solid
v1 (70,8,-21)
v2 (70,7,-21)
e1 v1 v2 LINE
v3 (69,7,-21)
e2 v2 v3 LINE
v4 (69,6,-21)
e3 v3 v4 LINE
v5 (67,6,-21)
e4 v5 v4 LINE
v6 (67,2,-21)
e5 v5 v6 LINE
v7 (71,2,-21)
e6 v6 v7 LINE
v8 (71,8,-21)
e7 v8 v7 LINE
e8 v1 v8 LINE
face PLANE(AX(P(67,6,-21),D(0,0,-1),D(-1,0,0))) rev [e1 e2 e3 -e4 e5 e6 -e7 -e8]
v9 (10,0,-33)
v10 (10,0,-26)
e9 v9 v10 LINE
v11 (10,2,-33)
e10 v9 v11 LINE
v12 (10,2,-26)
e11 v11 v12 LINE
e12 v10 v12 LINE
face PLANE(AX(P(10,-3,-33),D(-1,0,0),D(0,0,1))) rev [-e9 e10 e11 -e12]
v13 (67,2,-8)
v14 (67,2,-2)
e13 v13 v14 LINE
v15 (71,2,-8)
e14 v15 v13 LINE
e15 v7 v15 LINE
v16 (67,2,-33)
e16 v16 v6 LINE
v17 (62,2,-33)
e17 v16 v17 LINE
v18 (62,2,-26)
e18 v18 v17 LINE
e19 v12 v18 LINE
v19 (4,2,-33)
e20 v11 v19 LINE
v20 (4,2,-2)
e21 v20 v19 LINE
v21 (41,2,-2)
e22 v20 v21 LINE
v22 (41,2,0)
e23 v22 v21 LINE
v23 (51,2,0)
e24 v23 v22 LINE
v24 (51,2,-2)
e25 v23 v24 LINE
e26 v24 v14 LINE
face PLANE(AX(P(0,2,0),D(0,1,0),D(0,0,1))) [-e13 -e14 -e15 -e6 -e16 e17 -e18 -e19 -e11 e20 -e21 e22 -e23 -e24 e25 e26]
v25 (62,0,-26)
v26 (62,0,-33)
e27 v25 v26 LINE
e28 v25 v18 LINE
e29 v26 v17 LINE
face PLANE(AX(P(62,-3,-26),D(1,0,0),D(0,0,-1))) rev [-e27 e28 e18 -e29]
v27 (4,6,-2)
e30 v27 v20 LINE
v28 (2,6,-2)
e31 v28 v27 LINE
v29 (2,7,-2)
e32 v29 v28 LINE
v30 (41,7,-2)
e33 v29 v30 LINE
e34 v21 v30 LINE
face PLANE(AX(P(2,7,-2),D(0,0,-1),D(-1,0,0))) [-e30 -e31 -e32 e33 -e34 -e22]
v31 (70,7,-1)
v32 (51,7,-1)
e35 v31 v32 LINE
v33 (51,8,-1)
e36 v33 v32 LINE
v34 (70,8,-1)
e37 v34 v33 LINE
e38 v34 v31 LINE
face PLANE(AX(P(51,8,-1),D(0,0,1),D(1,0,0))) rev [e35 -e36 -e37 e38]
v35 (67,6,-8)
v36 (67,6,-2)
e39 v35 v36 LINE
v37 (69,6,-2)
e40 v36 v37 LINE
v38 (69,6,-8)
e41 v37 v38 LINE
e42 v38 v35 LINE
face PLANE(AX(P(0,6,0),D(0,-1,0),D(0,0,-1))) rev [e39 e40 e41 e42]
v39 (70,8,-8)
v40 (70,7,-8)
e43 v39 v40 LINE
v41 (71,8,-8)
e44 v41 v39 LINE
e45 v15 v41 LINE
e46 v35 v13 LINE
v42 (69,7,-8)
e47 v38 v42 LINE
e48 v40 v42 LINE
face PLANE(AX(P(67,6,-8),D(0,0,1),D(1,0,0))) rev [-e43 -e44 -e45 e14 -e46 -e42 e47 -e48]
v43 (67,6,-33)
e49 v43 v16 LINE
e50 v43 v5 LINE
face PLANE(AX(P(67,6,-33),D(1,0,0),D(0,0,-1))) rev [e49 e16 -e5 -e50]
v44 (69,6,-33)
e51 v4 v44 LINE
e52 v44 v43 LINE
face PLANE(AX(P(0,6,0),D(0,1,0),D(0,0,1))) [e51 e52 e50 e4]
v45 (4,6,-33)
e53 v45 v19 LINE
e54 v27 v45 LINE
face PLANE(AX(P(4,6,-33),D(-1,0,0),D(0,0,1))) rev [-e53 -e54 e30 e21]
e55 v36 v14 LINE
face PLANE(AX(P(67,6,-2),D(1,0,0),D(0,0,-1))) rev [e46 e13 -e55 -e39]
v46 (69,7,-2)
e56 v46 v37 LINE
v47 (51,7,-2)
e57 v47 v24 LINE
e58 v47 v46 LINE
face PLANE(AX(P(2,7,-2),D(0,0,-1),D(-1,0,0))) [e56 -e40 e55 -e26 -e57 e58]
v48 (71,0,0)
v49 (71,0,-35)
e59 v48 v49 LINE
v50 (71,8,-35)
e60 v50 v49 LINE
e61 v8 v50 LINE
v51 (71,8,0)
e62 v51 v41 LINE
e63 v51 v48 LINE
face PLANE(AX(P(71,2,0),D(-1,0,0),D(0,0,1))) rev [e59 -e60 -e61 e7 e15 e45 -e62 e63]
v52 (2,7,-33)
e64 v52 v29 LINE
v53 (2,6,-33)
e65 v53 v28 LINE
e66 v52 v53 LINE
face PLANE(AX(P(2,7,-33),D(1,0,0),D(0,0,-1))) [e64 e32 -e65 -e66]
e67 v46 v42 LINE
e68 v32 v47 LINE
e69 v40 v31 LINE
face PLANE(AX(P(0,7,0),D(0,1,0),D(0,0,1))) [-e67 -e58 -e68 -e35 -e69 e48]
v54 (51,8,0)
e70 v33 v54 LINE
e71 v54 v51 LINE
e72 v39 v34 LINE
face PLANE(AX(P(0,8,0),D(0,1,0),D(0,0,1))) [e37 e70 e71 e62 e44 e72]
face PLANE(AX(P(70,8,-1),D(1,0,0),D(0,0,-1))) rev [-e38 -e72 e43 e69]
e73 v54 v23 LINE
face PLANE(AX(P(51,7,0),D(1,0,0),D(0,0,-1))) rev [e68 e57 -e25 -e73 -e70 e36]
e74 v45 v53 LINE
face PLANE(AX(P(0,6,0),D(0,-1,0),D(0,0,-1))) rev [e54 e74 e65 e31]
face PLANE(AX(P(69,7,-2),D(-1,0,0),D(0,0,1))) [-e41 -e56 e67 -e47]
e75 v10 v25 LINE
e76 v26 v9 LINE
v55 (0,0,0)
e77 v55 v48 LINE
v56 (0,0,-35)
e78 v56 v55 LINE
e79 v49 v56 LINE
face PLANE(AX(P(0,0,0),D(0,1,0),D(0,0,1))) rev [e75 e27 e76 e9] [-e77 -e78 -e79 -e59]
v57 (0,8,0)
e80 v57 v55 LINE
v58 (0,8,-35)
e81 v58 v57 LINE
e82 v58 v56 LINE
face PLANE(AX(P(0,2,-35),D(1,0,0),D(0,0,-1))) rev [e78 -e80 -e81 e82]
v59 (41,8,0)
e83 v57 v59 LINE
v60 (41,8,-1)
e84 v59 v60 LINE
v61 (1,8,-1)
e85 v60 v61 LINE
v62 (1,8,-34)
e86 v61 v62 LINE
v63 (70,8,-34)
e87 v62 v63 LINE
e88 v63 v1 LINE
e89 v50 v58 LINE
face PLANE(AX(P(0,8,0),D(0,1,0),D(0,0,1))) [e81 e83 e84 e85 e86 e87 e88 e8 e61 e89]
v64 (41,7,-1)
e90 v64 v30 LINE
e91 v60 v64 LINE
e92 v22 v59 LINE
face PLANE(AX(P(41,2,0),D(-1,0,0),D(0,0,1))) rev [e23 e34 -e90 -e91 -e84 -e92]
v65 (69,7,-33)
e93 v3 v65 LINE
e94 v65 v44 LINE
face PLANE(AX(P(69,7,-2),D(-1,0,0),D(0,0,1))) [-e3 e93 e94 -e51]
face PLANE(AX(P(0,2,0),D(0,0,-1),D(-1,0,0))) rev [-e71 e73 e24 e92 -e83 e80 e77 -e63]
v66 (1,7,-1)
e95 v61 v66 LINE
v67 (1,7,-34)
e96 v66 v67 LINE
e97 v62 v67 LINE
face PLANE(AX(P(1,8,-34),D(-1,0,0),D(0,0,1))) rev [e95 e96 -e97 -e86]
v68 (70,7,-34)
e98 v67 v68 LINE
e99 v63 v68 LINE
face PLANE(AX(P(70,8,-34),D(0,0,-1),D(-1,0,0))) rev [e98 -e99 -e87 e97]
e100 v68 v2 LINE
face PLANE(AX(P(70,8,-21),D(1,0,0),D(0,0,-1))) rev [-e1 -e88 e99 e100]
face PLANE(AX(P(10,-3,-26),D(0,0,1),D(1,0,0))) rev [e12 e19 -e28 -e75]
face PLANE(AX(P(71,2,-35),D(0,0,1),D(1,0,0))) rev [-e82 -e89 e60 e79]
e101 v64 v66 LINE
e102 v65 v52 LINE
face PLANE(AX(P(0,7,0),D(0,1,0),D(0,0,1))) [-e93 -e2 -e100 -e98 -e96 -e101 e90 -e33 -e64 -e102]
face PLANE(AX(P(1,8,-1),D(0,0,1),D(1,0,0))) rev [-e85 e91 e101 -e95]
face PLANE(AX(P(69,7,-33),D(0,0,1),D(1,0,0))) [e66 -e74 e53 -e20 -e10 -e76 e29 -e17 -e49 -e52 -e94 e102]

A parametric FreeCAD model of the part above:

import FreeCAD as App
import Part
import Sketcher

V = App.Vector

doc = App.newDocument("Part")
body = doc.addObject("PartDesign::Body", "Body")

sketch1 = doc.addObject("Sketcher::SketchObject", "Sketch")
body.addObject(sketch1)
sketch1.AttachmentSupport = (doc.XZ_Plane, [""])
sketch1.MapMode = "FlatFace"
sketch1.addGeometry([
    Part.LineSegment(V(0, -35, 0), V(0, 0, 0)),
    Part.LineSegment(V(0, 0, 0), V(71, 0, 0)),
    Part.LineSegment(V(71, 0, 0), V(71, -35, 0)),
    Part.LineSegment(V(71, -35, 0), V(0, -35, 0)),
], False)
sketch1.addConstraint([
    Sketcher.Constraint("Coincident", 0, 2, 1, 1),
    Sketcher.Constraint("Coincident", 1, 2, 2, 1),
    Sketcher.Constraint("Coincident", 2, 2, 3, 1),
    Sketcher.Constraint("Coincident", 3, 2, 0, 1),
    Sketcher.Constraint("Vertical", 0),
    Sketcher.Constraint("Horizontal", 1),
    Sketcher.Constraint("Vertical", 2),
    Sketcher.Constraint("Horizontal", 3),
    Sketcher.Constraint("Coincident", 0, 2, -1, 1),
    Sketcher.Constraint("DistanceX", 1, 1, 1, 2, 71.0),
    Sketcher.Constraint("DistanceY", 0, 1, 0, 2, 35.0),
])
pad1 = doc.addObject("PartDesign::Pad", "Pad")
body.addObject(pad1)
pad1.Profile = sketch1
pad1.Length = 2
pad1.Reversed = True

sketch2 = doc.addObject("Sketcher::SketchObject", "Sketch001")
body.addObject(sketch2)
sketch2.AttachmentSupport = (doc.XZ_Plane, [""])
sketch2.MapMode = "FlatFace"
sketch2.AttachmentOffset = App.Placement(V(0, 0, -2), App.Rotation())
sketch2.addGeometry([
    Part.LineSegment(V(0, -35, 0), V(0, 0, 0)),
    Part.LineSegment(V(0, 0, 0), V(71, 0, 0)),
    Part.LineSegment(V(71, 0, 0), V(71, -35, 0)),
    Part.LineSegment(V(71, -35, 0), V(0, -35, 0)),
    Part.LineSegment(V(69, -2, 0), V(2, -2, 0)),
    Part.LineSegment(V(2, -2, 0), V(2, -33, 0)),
    Part.LineSegment(V(2, -33, 0), V(69, -33, 0)),
    Part.LineSegment(V(69, -33, 0), V(69, -2, 0)),
], False)
sketch2.addConstraint([
    Sketcher.Constraint("Coincident", 0, 2, 1, 1),
    Sketcher.Constraint("Coincident", 1, 2, 2, 1),
    Sketcher.Constraint("Coincident", 2, 2, 3, 1),
    Sketcher.Constraint("Coincident", 3, 2, 0, 1),
    Sketcher.Constraint("Coincident", 4, 2, 5, 1),
    Sketcher.Constraint("Coincident", 5, 2, 6, 1),
    Sketcher.Constraint("Coincident", 6, 2, 7, 1),
    Sketcher.Constraint("Coincident", 7, 2, 4, 1),
    Sketcher.Constraint("Vertical", 0),
    Sketcher.Constraint("Horizontal", 1),
    Sketcher.Constraint("Vertical", 2),
    Sketcher.Constraint("Horizontal", 3),
    Sketcher.Constraint("Horizontal", 4),
    Sketcher.Constraint("Vertical", 5),
    Sketcher.Constraint("Horizontal", 6),
    Sketcher.Constraint("Vertical", 7),
    Sketcher.Constraint("Coincident", 0, 2, -1, 1),
    Sketcher.Constraint("DistanceX", 1, 1, 1, 2, 71.0),
    Sketcher.Constraint("DistanceX", 4, 2, 4, 1, 67.0),
    Sketcher.Constraint("DistanceY", 0, 1, 0, 2, 35.0),
    Sketcher.Constraint("DistanceY", 5, 2, 5, 1, 31.0),
    Sketcher.Constraint("DistanceX", -1, 1, 4, 2, 2.0),
    Sketcher.Constraint("DistanceY", 4, 2, -1, 1, 2.0),
])
pad2 = doc.addObject("PartDesign::Pad", "Pad001")
body.addObject(pad2)
pad2.Profile = sketch2
pad2.Length = 5
pad2.Reversed = True

sketch3 = doc.addObject("Sketcher::SketchObject", "Sketch002")
body.addObject(sketch3)
sketch3.AttachmentSupport = (doc.XZ_Plane, [""])
sketch3.MapMode = "FlatFace"
sketch3.AttachmentOffset = App.Placement(V(0, 0, -2), App.Rotation())
sketch3.addGeometry([
    Part.LineSegment(V(10, -33, 0), V(10, -26, 0)),
    Part.LineSegment(V(10, -26, 0), V(62, -26, 0)),
    Part.LineSegment(V(62, -26, 0), V(62, -33, 0)),
    Part.LineSegment(V(62, -33, 0), V(10, -33, 0)),
], False)
sketch3.addConstraint([
    Sketcher.Constraint("Coincident", 0, 2, 1, 1),
    Sketcher.Constraint("Coincident", 1, 2, 2, 1),
    Sketcher.Constraint("Coincident", 2, 2, 3, 1),
    Sketcher.Constraint("Coincident", 3, 2, 0, 1),
    Sketcher.Constraint("Vertical", 0),
    Sketcher.Constraint("Horizontal", 1),
    Sketcher.Constraint("Vertical", 2),
    Sketcher.Constraint("Horizontal", 3),
    Sketcher.Constraint("DistanceX", 1, 1, 1, 2, 52.0),
    Sketcher.Constraint("DistanceY", 0, 1, 0, 2, 7.0),
    Sketcher.Constraint("DistanceX", -1, 1, 0, 2, 10.0),
    Sketcher.Constraint("DistanceY", 0, 2, -1, 1, 26.0),
])
pocket1 = doc.addObject("PartDesign::Pocket", "Pocket")
body.addObject(pocket1)
pocket1.Profile = sketch3
pocket1.Length = 5
pocket1.Reversed = True

sketch4 = doc.addObject("Sketcher::SketchObject", "Sketch003")
body.addObject(sketch4)
sketch4.AttachmentSupport = (doc.XZ_Plane, [""])
sketch4.MapMode = "FlatFace"
sketch4.AttachmentOffset = App.Placement(V(0, 0, -2), App.Rotation())
sketch4.addGeometry([
    Part.LineSegment(V(2, -33, 0), V(2, -2, 0)),
    Part.LineSegment(V(2, -2, 0), V(4, -2, 0)),
    Part.LineSegment(V(4, -2, 0), V(4, -33, 0)),
    Part.LineSegment(V(4, -33, 0), V(2, -33, 0)),
    Part.LineSegment(V(67, -33, 0), V(67, -21, 0)),
    Part.LineSegment(V(67, -21, 0), V(69, -21, 0)),
    Part.LineSegment(V(69, -21, 0), V(69, -33, 0)),
    Part.LineSegment(V(69, -33, 0), V(67, -33, 0)),
    Part.LineSegment(V(67, -8, 0), V(67, -2, 0)),
    Part.LineSegment(V(67, -2, 0), V(69, -2, 0)),
    Part.LineSegment(V(69, -2, 0), V(69, -8, 0)),
    Part.LineSegment(V(69, -8, 0), V(67, -8, 0)),
], False)
sketch4.addConstraint([
    Sketcher.Constraint("Coincident", 0, 2, 1, 1),
    Sketcher.Constraint("Coincident", 1, 2, 2, 1),
    Sketcher.Constraint("Coincident", 2, 2, 3, 1),
    Sketcher.Constraint("Coincident", 3, 2, 0, 1),
    Sketcher.Constraint("Coincident", 4, 2, 5, 1),
    Sketcher.Constraint("Coincident", 5, 2, 6, 1),
    Sketcher.Constraint("Coincident", 6, 2, 7, 1),
    Sketcher.Constraint("Coincident", 7, 2, 4, 1),
    Sketcher.Constraint("Coincident", 8, 2, 9, 1),
    Sketcher.Constraint("Coincident", 9, 2, 10, 1),
    Sketcher.Constraint("Coincident", 10, 2, 11, 1),
    Sketcher.Constraint("Coincident", 11, 2, 8, 1),
    Sketcher.Constraint("Vertical", 0),
    Sketcher.Constraint("Horizontal", 1),
    Sketcher.Constraint("Vertical", 2),
    Sketcher.Constraint("Horizontal", 3),
    Sketcher.Constraint("Vertical", 4),
    Sketcher.Constraint("Horizontal", 5),
    Sketcher.Constraint("Vertical", 6),
    Sketcher.Constraint("Horizontal", 7),
    Sketcher.Constraint("Vertical", 8),
    Sketcher.Constraint("Horizontal", 9),
    Sketcher.Constraint("Vertical", 10),
    Sketcher.Constraint("Horizontal", 11),
    Sketcher.Constraint("Horizontal", 3, 2, 6, 2),
    Sketcher.Constraint("Horizontal", 1, 2, 8, 2),
    Sketcher.Constraint("Vertical", 7, 2, 8, 2),
    Sketcher.Constraint("Vertical", 6, 2, 9, 2),
    Sketcher.Constraint("Equal", 3, 5),
    Sketcher.Constraint("DistanceX", 1, 1, 1, 2, 2.0),
    Sketcher.Constraint("DistanceY", 0, 1, 0, 2, 31.0),
    Sketcher.Constraint("DistanceY", 4, 1, 4, 2, 12.0),
    Sketcher.Constraint("DistanceY", 8, 1, 8, 2, 6.0),
    Sketcher.Constraint("DistanceX", -1, 1, 0, 2, 2.0),
    Sketcher.Constraint("DistanceY", 0, 2, -1, 1, 2.0),
    Sketcher.Constraint("DistanceX", -1, 1, 4, 2, 67.0),
])
pad3 = doc.addObject("PartDesign::Pad", "Pad002")
body.addObject(pad3)
pad3.Profile = sketch4
pad3.Length = 4
pad3.Reversed = True

sketch5 = doc.addObject("Sketcher::SketchObject", "Sketch004")
body.addObject(sketch5)
sketch5.AttachmentSupport = (doc.YZ_Plane, [""])
sketch5.MapMode = "FlatFace"
sketch5.AttachmentOffset = App.Placement(V(0, 0, 69), App.Rotation())
sketch5.addGeometry([
    Part.LineSegment(V(7, -21, 0), V(2, -21, 0)),
    Part.LineSegment(V(2, -21, 0), V(2, -8, 0)),
    Part.LineSegment(V(2, -8, 0), V(7, -8, 0)),
    Part.LineSegment(V(7, -8, 0), V(7, -21, 0)),
], False)
sketch5.addConstraint([
    Sketcher.Constraint("Coincident", 0, 2, 1, 1),
    Sketcher.Constraint("Coincident", 1, 2, 2, 1),
    Sketcher.Constraint("Coincident", 2, 2, 3, 1),
    Sketcher.Constraint("Coincident", 3, 2, 0, 1),
    Sketcher.Constraint("Horizontal", 0),
    Sketcher.Constraint("Vertical", 1),
    Sketcher.Constraint("Horizontal", 2),
    Sketcher.Constraint("Vertical", 3),
    Sketcher.Constraint("DistanceX", 0, 2, 0, 1, 5.0),
    Sketcher.Constraint("DistanceY", 1, 1, 1, 2, 13.0),
    Sketcher.Constraint("DistanceX", -1, 1, 0, 2, 2.0),
    Sketcher.Constraint("DistanceY", 0, 2, -1, 1, 21.0),
])
pocket2 = doc.addObject("PartDesign::Pocket", "Pocket001")
body.addObject(pocket2)
pocket2.Profile = sketch5
pocket2.Length = 2
pocket2.Reversed = True

sketch6 = doc.addObject("Sketcher::SketchObject", "Sketch005")
body.addObject(sketch6)
sketch6.AttachmentSupport = (doc.XY_Plane, [""])
sketch6.MapMode = "FlatFace"
sketch6.AttachmentOffset = App.Placement(V(0, 0, -2), App.Rotation())
sketch6.addGeometry([
    Part.LineSegment(V(51, 7, 0), V(51, 2, 0)),
    Part.LineSegment(V(51, 2, 0), V(41, 2, 0)),
    Part.LineSegment(V(41, 2, 0), V(41, 7, 0)),
    Part.LineSegment(V(41, 7, 0), V(51, 7, 0)),
], False)
sketch6.addConstraint([
    Sketcher.Constraint("Coincident", 0, 2, 1, 1),
    Sketcher.Constraint("Coincident", 1, 2, 2, 1),
    Sketcher.Constraint("Coincident", 2, 2, 3, 1),
    Sketcher.Constraint("Coincident", 3, 2, 0, 1),
    Sketcher.Constraint("Vertical", 0),
    Sketcher.Constraint("Horizontal", 1),
    Sketcher.Constraint("Vertical", 2),
    Sketcher.Constraint("Horizontal", 3),
    Sketcher.Constraint("DistanceX", 1, 2, 1, 1, 10.0),
    Sketcher.Constraint("DistanceY", 0, 2, 0, 1, 5.0),
    Sketcher.Constraint("DistanceX", -1, 1, 0, 2, 51.0),
    Sketcher.Constraint("DistanceY", -1, 1, 0, 2, 2.0),
])
pocket3 = doc.addObject("PartDesign::Pocket", "Pocket002")
body.addObject(pocket3)
pocket3.Profile = sketch6
pocket3.Length = 2
pocket3.Reversed = True

sketch7 = doc.addObject("Sketcher::SketchObject", "Sketch006")
body.addObject(sketch7)
sketch7.AttachmentSupport = (doc.XZ_Plane, [""])
sketch7.MapMode = "FlatFace"
sketch7.AttachmentOffset = App.Placement(V(0, 0, -7), App.Rotation())
sketch7.addGeometry([
    Part.LineSegment(V(71, -35, 0), V(0, -35, 0)),
    Part.LineSegment(V(0, -35, 0), V(0, 0, 0)),
    Part.LineSegment(V(0, 0, 0), V(41, 0, 0)),
    Part.LineSegment(V(41, 0, 0), V(41, -1, 0)),
    Part.LineSegment(V(41, -1, 0), V(1, -1, 0)),
    Part.LineSegment(V(1, -1, 0), V(1, -34, 0)),
    Part.LineSegment(V(1, -34, 0), V(70, -34, 0)),
    Part.LineSegment(V(70, -34, 0), V(70, -21, 0)),
    Part.LineSegment(V(70, -21, 0), V(71, -21, 0)),
    Part.LineSegment(V(71, -21, 0), V(71, -35, 0)),
    Part.LineSegment(V(51, 0, 0), V(71, 0, 0)),
    Part.LineSegment(V(71, 0, 0), V(71, -8, 0)),
    Part.LineSegment(V(71, -8, 0), V(70, -8, 0)),
    Part.LineSegment(V(70, -8, 0), V(70, -1, 0)),
    Part.LineSegment(V(70, -1, 0), V(51, -1, 0)),
    Part.LineSegment(V(51, -1, 0), V(51, 0, 0)),
], False)
sketch7.addConstraint([
    Sketcher.Constraint("Coincident", 0, 2, 1, 1),
    Sketcher.Constraint("Coincident", 1, 2, 2, 1),
    Sketcher.Constraint("Coincident", 2, 2, 3, 1),
    Sketcher.Constraint("Coincident", 3, 2, 4, 1),
    Sketcher.Constraint("Coincident", 4, 2, 5, 1),
    Sketcher.Constraint("Coincident", 5, 2, 6, 1),
    Sketcher.Constraint("Coincident", 6, 2, 7, 1),
    Sketcher.Constraint("Coincident", 7, 2, 8, 1),
    Sketcher.Constraint("Coincident", 8, 2, 9, 1),
    Sketcher.Constraint("Coincident", 9, 2, 0, 1),
    Sketcher.Constraint("Coincident", 10, 2, 11, 1),
    Sketcher.Constraint("Coincident", 11, 2, 12, 1),
    Sketcher.Constraint("Coincident", 12, 2, 13, 1),
    Sketcher.Constraint("Coincident", 13, 2, 14, 1),
    Sketcher.Constraint("Coincident", 14, 2, 15, 1),
    Sketcher.Constraint("Coincident", 15, 2, 10, 1),
    Sketcher.Constraint("Horizontal", 0),
    Sketcher.Constraint("Vertical", 1),
    Sketcher.Constraint("Horizontal", 2),
    Sketcher.Constraint("Vertical", 3),
    Sketcher.Constraint("Horizontal", 4),
    Sketcher.Constraint("Vertical", 5),
    Sketcher.Constraint("Horizontal", 6),
    Sketcher.Constraint("Vertical", 7),
    Sketcher.Constraint("Horizontal", 8),
    Sketcher.Constraint("Vertical", 9),
    Sketcher.Constraint("Horizontal", 10),
    Sketcher.Constraint("Vertical", 11),
    Sketcher.Constraint("Horizontal", 12),
    Sketcher.Constraint("Vertical", 13),
    Sketcher.Constraint("Horizontal", 14),
    Sketcher.Constraint("Vertical", 15),
    Sketcher.Constraint("Coincident", 1, 2, -1, 1),
    Sketcher.Constraint("PointOnObject", 10, 2, -1),
    Sketcher.Constraint("Horizontal", 4, 2, 13, 2),
    Sketcher.Constraint("Vertical", 9, 2, 10, 2),
    Sketcher.Constraint("Vertical", 7, 2, 12, 2),
    Sketcher.Constraint("Equal", 12, 3),
    Sketcher.Constraint("DistanceX", 0, 2, 0, 1, 71.0),
    Sketcher.Constraint("DistanceX", 2, 1, 2, 2, 41.0),
    Sketcher.Constraint("DistanceX", 4, 2, 4, 1, 40.0),
    Sketcher.Constraint("DistanceX", 6, 1, 6, 2, 69.0),
    Sketcher.Constraint("DistanceX", 10, 1, 10, 2, 20.0),
    Sketcher.Constraint("DistanceY", 1, 1, 1, 2, 35.0),
    Sketcher.Constraint("DistanceY", 5, 2, 5, 1, 33.0),
    Sketcher.Constraint("DistanceY", 7, 1, 7, 2, 13.0),
    Sketcher.Constraint("DistanceY", 11, 2, 11, 1, 8.0),
])
pad4 = doc.addObject("PartDesign::Pad", "Pad003")
body.addObject(pad4)
pad4.Profile = sketch7
pad4.Length = 1
pad4.Reversed = True

doc.recompute()
